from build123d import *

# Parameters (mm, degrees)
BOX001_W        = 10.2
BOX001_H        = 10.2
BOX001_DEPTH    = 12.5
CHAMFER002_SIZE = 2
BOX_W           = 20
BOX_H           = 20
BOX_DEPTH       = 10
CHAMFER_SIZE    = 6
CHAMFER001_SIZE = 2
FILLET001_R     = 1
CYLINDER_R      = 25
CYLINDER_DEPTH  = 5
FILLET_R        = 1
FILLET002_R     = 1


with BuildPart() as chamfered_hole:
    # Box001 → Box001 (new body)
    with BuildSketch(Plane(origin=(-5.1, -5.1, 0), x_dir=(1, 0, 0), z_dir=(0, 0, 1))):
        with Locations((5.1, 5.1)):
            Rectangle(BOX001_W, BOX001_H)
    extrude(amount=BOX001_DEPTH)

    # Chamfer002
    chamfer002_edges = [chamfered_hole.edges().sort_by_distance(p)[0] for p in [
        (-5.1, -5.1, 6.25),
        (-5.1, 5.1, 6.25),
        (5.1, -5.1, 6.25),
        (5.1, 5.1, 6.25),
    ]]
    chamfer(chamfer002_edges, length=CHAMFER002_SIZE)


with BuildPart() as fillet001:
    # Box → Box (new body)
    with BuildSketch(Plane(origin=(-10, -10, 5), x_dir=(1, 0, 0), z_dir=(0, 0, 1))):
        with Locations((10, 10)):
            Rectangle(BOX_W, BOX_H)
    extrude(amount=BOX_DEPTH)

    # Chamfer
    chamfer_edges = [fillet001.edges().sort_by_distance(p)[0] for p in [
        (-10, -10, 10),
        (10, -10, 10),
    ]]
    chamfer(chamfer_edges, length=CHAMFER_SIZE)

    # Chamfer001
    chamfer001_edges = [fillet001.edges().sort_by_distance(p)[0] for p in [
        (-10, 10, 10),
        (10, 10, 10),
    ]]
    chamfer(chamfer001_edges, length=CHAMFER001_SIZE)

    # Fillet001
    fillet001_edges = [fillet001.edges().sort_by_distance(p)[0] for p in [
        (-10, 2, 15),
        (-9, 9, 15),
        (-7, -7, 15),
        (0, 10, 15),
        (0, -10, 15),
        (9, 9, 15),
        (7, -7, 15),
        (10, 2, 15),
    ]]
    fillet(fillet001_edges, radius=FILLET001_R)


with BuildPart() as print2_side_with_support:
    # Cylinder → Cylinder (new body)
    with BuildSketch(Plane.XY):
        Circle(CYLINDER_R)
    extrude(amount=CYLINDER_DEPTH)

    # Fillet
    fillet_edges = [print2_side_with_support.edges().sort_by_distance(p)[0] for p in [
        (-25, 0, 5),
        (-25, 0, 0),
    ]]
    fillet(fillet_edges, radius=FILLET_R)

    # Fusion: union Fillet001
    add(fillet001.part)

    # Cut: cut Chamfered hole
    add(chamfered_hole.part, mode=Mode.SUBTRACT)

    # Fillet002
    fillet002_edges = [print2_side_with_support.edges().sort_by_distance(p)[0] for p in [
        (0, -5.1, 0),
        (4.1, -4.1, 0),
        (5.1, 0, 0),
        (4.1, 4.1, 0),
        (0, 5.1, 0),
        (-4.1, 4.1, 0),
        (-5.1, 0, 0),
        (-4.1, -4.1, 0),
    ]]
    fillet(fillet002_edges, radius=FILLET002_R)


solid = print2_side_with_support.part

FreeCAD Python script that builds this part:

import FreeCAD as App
import Part
import Sketcher
Q = App.Units.Quantity


def edges_at(feature, points):
    """Names of the edges that pass closest to the given points."""
    edges = feature.Shape.Edges
    near = lambda p: min(range(len(edges)), key=lambda i: edges[i].distToShape(Part.Vertex(*p))[0])
    return sorted({f"Edge{near(p) + 1}" for p in points})

doc = App.newDocument("Part")
params = doc.addObject("Spreadsheet::Sheet", "Params")
for row, (alias, value) in enumerate([
    ("sketch1_width", "10.2 mm"),
    ("pad1_length", "12.5 mm"),
    ("chamfer_size", "2 mm"),
    ("sketch2_width", "20 mm"),
    ("pad2_length", "10 mm"),
    ("chamfer2_size", "6 mm"),
    ("chamfer3_size", "2 mm"),
    ("fillet_radius", "1 mm"),
    ("sketch3_diameter", "50 mm"),
    ("pad3_length", "5 mm"),
    ("fillet2_radius", "1 mm"),
    ("fillet3_radius", "1 mm"),
], start=1):
    params.set(f"A{row}", alias)
    params.set(f"B{row}", "=" + value)
    params.setAlias(f"B{row}", alias)

body = doc.addObject("PartDesign::Body", "Body")

# Sketch on XY plane
sketch1 = body.newObject("Sketcher::SketchObject", "Sketch")
sketch1.AttachmentSupport = (doc.getObject("XY_Plane"), [""])
sketch1.MapMode = "FlatFace"
sketch1.addGeometry([
    Part.LineSegment(App.Vector(-5, 5, 0), App.Vector(-5, -5, 0)),
    Part.LineSegment(App.Vector(-5, -5, 0), App.Vector(5, -5, 0)),
    Part.LineSegment(App.Vector(5, -5, 0), App.Vector(5, 5, 0)),
    Part.LineSegment(App.Vector(5, 5, 0), App.Vector(-5, 5, 0)),
], False)
sketch1.addConstraint([
    Sketcher.Constraint("Coincident", 0, 2, 1, 1),
    Sketcher.Constraint("Coincident", 1, 2, 2, 1),
    Sketcher.Constraint("Coincident", 2, 2, 3, 1),
    Sketcher.Constraint("Coincident", 3, 2, 0, 1),
    Sketcher.Constraint("Vertical", 0),
    Sketcher.Constraint("Horizontal", 1),
    Sketcher.Constraint("Vertical", 2),
    Sketcher.Constraint("Horizontal", 3),
    Sketcher.Constraint("Symmetric", 0, 2, 2, 2, -1, 1),
    Sketcher.Constraint("Equal", 3, 0),
    Sketcher.Constraint("DistanceX", 1, 1, 1, 2, Q("10.2 mm")),
])
sketch1.setExpression("Constraints[10]", "Params.sketch1_width")
pad1 = body.newObject("PartDesign::Pad", "Pad")
pad1.Profile = sketch1
pad1.setExpression("Length", "Params.pad1_length")
doc.recompute()

chamfer = body.newObject("PartDesign::Chamfer", "Chamfer")
chamfer.Base = (pad1, edges_at(pad1, [
    (-5.1, -5.1, 6.25),
    (-5.1, 5.1, 6.25),
    (5.1, -5.1, 6.25),
    (5.1, 5.1, 6.25),
]))
chamfer.setExpression("Size", "Params.chamfer_size")
body2 = doc.addObject("PartDesign::Body", "Body001")

# Sketch on XY plane
sketch2 = body2.newObject("Sketcher::SketchObject", "Sketch001")
sketch2.AttachmentSupport = (doc.getObject("XY_Plane001"), [""])
sketch2.MapMode = "FlatFace"
sketch2.AttachmentOffset = App.Placement(App.Vector(0, 0, 5), App.Rotation())
sketch2.addGeometry([
    Part.LineSegment(App.Vector(-10, 10, 0), App.Vector(-10, -10, 0)),
    Part.LineSegment(App.Vector(-10, -10, 0), App.Vector(10, -10, 0)),
    Part.LineSegment(App.Vector(10, -10, 0), App.Vector(10, 10, 0)),
    Part.LineSegment(App.Vector(10, 10, 0), App.Vector(-10, 10, 0)),
], False)
sketch2.addConstraint([
    Sketcher.Constraint("Coincident", 0, 2, 1, 1),
    Sketcher.Constraint("Coincident", 1, 2, 2, 1),
    Sketcher.Constraint("Coincident", 2, 2, 3, 1),
    Sketcher.Constraint("Coincident", 3, 2, 0, 1),
    Sketcher.Constraint("Vertical", 0),
    Sketcher.Constraint("Horizontal", 1),
    Sketcher.Constraint("Vertical", 2),
    Sketcher.Constraint("Horizontal", 3),
    Sketcher.Constraint("Symmetric", 0, 2, 2, 2, -1, 1),
    Sketcher.Constraint("Equal", 3, 0),
    Sketcher.Constraint("DistanceX", 1, 1, 1, 2, Q("20 mm")),
])
sketch2.setExpression("Constraints[10]", "Params.sketch2_width")
pad2 = body2.newObject("PartDesign::Pad", "Pad001")
pad2.Profile = sketch2
pad2.setExpression("Length", "Params.pad2_length")
doc.recompute()

chamfer2 = body2.newObject("PartDesign::Chamfer", "Chamfer001")
chamfer2.Base = (pad2, edges_at(pad2, [(-10, -10, 10), (10, -10, 10)]))
chamfer2.setExpression("Size", "Params.chamfer2_size")
doc.recompute()

chamfer3 = body2.newObject("PartDesign::Chamfer", "Chamfer002")
chamfer3.Base = (chamfer2, edges_at(chamfer2, [(-10, 10, 10), (10, 10, 10)]))
chamfer3.setExpression("Size", "Params.chamfer3_size")
doc.recompute()

fillet = body2.newObject("PartDesign::Fillet", "Fillet")
fillet.Base = (chamfer3, edges_at(chamfer3, [
    (-10, 2, 15),
    (-9, 9, 15),
    (-7, -7, 15),
    (0, 10, 15),
    (0, -10, 15),
    (9, 9, 15),
    (7, -7, 15),
    (10, 2, 15),
]))
fillet.setExpression("Radius", "Params.fillet_radius")
body3 = doc.addObject("PartDesign::Body", "Body002")

# Sketch on XY plane
sketch3 = body3.newObject("Sketcher::SketchObject", "Sketch002")
sketch3.AttachmentSupport = (doc.getObject("XY_Plane002"), [""])
sketch3.MapMode = "FlatFace"
sketch3.addGeometry(Part.Circle(App.Vector(0, 0, 0), App.Vector(0, 0, 1), 25), False)
sketch3.addConstraint([
    Sketcher.Constraint("Coincident", 0, 3, -1, 1),
    Sketcher.Constraint("Diameter", 0, Q("50 mm")),
])
sketch3.setExpression("Constraints[1]", "Params.sketch3_diameter")
pad3 = body3.newObject("PartDesign::Pad", "Pad002")
pad3.Profile = sketch3
pad3.setExpression("Length", "Params.pad3_length")
doc.recompute()

fillet2 = body3.newObject("PartDesign::Fillet", "Fillet001")
fillet2.Base = (pad3, edges_at(pad3, [(-25, 0, 5), (-25, 0, 0)]))
fillet2.setExpression("Radius", "Params.fillet2_radius")
doc.recompute()

boolean = body3.newObject("PartDesign::Boolean", "Boolean")
boolean.Type = "Fuse"
boolean.addObjects([body2])
doc.recompute()

boolean2 = body3.newObject("PartDesign::Boolean", "Boolean001")
boolean2.Type = "Cut"
boolean2.addObjects([body])
doc.recompute()

fillet3 = body3.newObject("PartDesign::Fillet", "Fillet002")
fillet3.Base = (boolean2, edges_at(boolean2, [
    (0, -5.1, 0),
    (4.1, -4.1, 0),
    (5.1, 0, 0),
    (4.1, 4.1, 0),
    (0, 5.1, 0),
    (-4.1, 4.1, 0),
    (-5.1, 0, 0),
    (-4.1, -4.1, 0),
]))
fillet3.setExpression("Radius", "Params.fillet3_radius")

doc.recompute()
